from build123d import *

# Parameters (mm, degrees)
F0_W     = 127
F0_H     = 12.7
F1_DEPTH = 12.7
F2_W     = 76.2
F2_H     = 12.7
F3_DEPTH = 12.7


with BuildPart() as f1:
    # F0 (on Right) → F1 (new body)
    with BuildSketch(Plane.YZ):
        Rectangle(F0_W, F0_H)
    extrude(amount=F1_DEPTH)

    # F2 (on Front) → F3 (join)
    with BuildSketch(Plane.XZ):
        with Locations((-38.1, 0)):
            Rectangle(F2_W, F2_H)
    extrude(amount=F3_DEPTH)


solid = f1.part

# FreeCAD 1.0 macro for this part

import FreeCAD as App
import Part
import Sketcher
from FreeCAD import Vector
Q = App.Units.Quantity

doc = App.newDocument("Part")
params = doc.addObject("Spreadsheet::Sheet", "Params")
for row, (alias, value) in enumerate([
    ("sketch1_width", "5 in"),
    ("sketch1_height", "0.5 in"),
    ("pad1_length", "0.5 in"),
    ("sketch2_width", "3 in"),
    ("sketch2_height", "0.5 in"),
    ("pad2_length", "0.5 in"),
], start=1):
    params.set(f"A{row}", alias)
    params.set(f"B{row}", "=" + value)
    params.setAlias(f"B{row}", alias)

body = doc.addObject("PartDesign::Body", "Body")

sketch1 = doc.addObject("Sketcher::SketchObject", "Sketch")
body.addObject(sketch1)
sketch1.AttachmentSupport = (doc.YZ_Plane, [""])
sketch1.MapMode = "FlatFace"
sketch1.addGeometry(Part.LineSegment(Vector(-64, 6, 0), Vector(-64, -6, 0)), False)
sketch1.addGeometry(Part.LineSegment(Vector(-64, -6, 0), Vector(64, -6, 0)), False)
sketch1.addGeometry(Part.LineSegment(Vector(64, -6, 0), Vector(64, 6, 0)), False)
sketch1.addGeometry(Part.LineSegment(Vector(64, 6, 0), Vector(-64, 6, 0)), False)
sketch1.addConstraint(Sketcher.Constraint("Coincident", 0, 2, 1, 1))
sketch1.addConstraint(Sketcher.Constraint("Coincident", 1, 2, 2, 1))
sketch1.addConstraint(Sketcher.Constraint("Coincident", 2, 2, 3, 1))
sketch1.addConstraint(Sketcher.Constraint("Coincident", 3, 2, 0, 1))
sketch1.addConstraint(Sketcher.Constraint("Vertical", 0))
sketch1.addConstraint(Sketcher.Constraint("Horizontal", 1))
sketch1.addConstraint(Sketcher.Constraint("Vertical", 2))
sketch1.addConstraint(Sketcher.Constraint("Horizontal", 3))
sketch1.addConstraint(Sketcher.Constraint("Symmetric", 0, 2, 2, 2, -1, 1))
sketch1.addConstraint(Sketcher.Constraint("DistanceX", 1, 1, 1, 2, Q("5 in")))
sketch1.addConstraint(Sketcher.Constraint("DistanceY", 0, 2, 0, 1, Q("0.5 in")))
sketch1.setExpression("Constraints[9]", "Params.sketch1_width")
sketch1.setExpression("Constraints[10]", "Params.sketch1_height")
pad1 = doc.addObject("PartDesign::Pad", "Pad")
body.addObject(pad1)
pad1.Profile = sketch1
pad1.setExpression("Length", "Params.pad1_length")

sketch2 = doc.addObject("Sketcher::SketchObject", "Sketch001")
body.addObject(sketch2)
sketch2.AttachmentSupport = (doc.XZ_Plane, [""])
sketch2.MapMode = "FlatFace"
sketch2.addGeometry(Part.LineSegment(Vector(-76, 6, 0), Vector(-76, -6, 0)), False)
sketch2.addGeometry(Part.LineSegment(Vector(-76, -6, 0), Vector(0, -6, 0)), False)
sketch2.addGeometry(Part.LineSegment(Vector(0, -6, 0), Vector(0, 6, 0)), False)
sketch2.addGeometry(Part.LineSegment(Vector(0, 6, 0), Vector(-76, 6, 0)), False)
sketch2.addConstraint(Sketcher.Constraint("Coincident", 0, 2, 1, 1))
sketch2.addConstraint(Sketcher.Constraint("Coincident", 1, 2, 2, 1))
sketch2.addConstraint(Sketcher.Constraint("Coincident", 2, 2, 3, 1))
sketch2.addConstraint(Sketcher.Constraint("Coincident", 3, 2, 0, 1))
sketch2.addConstraint(Sketcher.Constraint("Vertical", 0))
sketch2.addConstraint(Sketcher.Constraint("Horizontal", 1))
sketch2.addConstraint(Sketcher.Constraint("Vertical", 2))
sketch2.addConstraint(Sketcher.Constraint("Horizontal", 3))
sketch2.addConstraint(Sketcher.Constraint("Symmetric", 1, 2, 2, 2, -1, 1))
sketch2.addConstraint(Sketcher.Constraint("DistanceX", 1, 1, 1, 2, Q("3 in")))
sketch2.addConstraint(Sketcher.Constraint("DistanceY", 0, 2, 0, 1, Q("0.5 in")))
sketch2.setExpression("Constraints[9]", "Params.sketch2_width")
sketch2.setExpression("Constraints[10]", "Params.sketch2_height")
pad2 = doc.addObject("PartDesign::Pad", "Pad001")
body.addObject(pad2)
pad2.Profile = sketch2
pad2.setExpression("Length", "Params.pad2_length")

doc.recompute()
